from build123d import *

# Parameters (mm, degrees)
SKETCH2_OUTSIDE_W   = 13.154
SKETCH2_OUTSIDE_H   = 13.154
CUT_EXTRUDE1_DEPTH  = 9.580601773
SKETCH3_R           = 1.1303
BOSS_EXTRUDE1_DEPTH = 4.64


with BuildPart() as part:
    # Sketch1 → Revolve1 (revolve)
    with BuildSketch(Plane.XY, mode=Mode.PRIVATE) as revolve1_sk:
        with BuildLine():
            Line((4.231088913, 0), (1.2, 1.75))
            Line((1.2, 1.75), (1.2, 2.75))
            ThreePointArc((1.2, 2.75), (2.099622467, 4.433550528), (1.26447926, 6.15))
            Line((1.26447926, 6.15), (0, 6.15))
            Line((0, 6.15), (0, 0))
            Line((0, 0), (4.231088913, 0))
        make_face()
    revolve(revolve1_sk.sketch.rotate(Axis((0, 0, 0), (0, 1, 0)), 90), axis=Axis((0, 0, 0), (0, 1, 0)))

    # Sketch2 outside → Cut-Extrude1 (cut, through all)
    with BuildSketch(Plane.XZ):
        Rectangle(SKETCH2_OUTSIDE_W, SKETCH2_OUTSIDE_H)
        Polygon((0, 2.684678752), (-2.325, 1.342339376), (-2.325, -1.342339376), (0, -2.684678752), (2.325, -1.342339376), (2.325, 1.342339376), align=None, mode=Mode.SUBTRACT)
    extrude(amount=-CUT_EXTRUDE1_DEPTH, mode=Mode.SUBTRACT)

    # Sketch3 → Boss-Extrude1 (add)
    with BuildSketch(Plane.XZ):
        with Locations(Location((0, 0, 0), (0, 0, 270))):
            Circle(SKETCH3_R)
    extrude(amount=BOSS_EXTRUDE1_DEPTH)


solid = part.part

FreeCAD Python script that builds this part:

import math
import FreeCAD as App
import Part
import Sketcher
from FreeCAD import Vector
Q = App.Units.Quantity


def add_polygon(sketch, points):
    """Adds a closed chain of lines whose ends are joined by coincident constraints."""
    first, n = sketch.GeometryCount, len(points)
    for a, b in zip(points, points[1:] + points[:1]):
        sketch.addGeometry(Part.LineSegment(App.Vector(*a, 0), App.Vector(*b, 0)), False)
    for i in range(n):
        sketch.addConstraint(Sketcher.Constraint("Coincident", first + i, 2, first + (i + 1) % n, 1))

doc = App.newDocument("Part")
body = doc.addObject("PartDesign::Body", "Body")

# Sketch on XY plane
sketch1 = body.newObject("Sketcher::SketchObject", "Sketch")
sketch1.AttachmentSupport = (doc.getObject("XY_Plane"), [""])
sketch1.MapMode = "FlatFace"
sketch1.addGeometry([
    Part.LineSegment(Vector(4.231089, 0, 0), Vector(1.2, 1.75, 0)),  # 0
    Part.LineSegment(Vector(1.2, 1.75, 0), Vector(1.2, 2.75, 0)),  # 1
    Part.ArcOfCircle(Part.Circle(Vector(0, 4.473369, 0), Vector(0, 0, 1), 2.1), math.radians(-55.150095), math.radians(52.977186)),  # 2
    Part.LineSegment(Vector(1.264479, 6.15, 0), Vector(0, 6.15, 0)),  # 3
    Part.LineSegment(Vector(0, 6.15, 0), Vector(0, 0, 0)),  # 4
    Part.LineSegment(Vector(0, 0, 0), Vector(4.231089, 0, 0)),  # 5
], False)
sketch1.addConstraint([
    Sketcher.Constraint("Coincident", 0, 2, 1, 1),
    Sketcher.Constraint("Coincident", 1, 2, 2, 1),
    Sketcher.Constraint("Coincident", 2, 2, 3, 1),
    Sketcher.Constraint("Coincident", 3, 2, 4, 1),
    Sketcher.Constraint("Coincident", 4, 2, 5, 1),
    Sketcher.Constraint("Coincident", 5, 2, 0, 1),
    Sketcher.Constraint("Vertical", 1),
    Sketcher.Constraint("Horizontal", 3),
    Sketcher.Constraint("Vertical", 4),
    Sketcher.Constraint("Horizontal", 5),
    Sketcher.Constraint("Coincident", 4, 2, -1, 1),
    Sketcher.Constraint("PointOnObject", 2, 3, -2),
    Sketcher.Constraint("Radius", 2, 2.1),
    Sketcher.Constraint("DistanceY", 1, 1, 1, 2, 1.0),
    Sketcher.Constraint("Angle", 0, Q("150 deg")),
    Sketcher.Constraint("Distance", 0, 3.5),
    Sketcher.Constraint("DistanceY", 4, 2, 4, 1, 6.15),
    Sketcher.Constraint("DistanceX", -1, 1, 0, 2, 1.2),
])
revolution = body.newObject("PartDesign::Revolution", "Revolution")
revolution.Profile = sketch1
revolution.ReferenceAxis = (sketch1, ["V_Axis"])
revolution.Angle = 360

# Sketch on XZ plane
sketch2 = body.newObject("Sketcher::SketchObject", "Sketch001")
sketch2.AttachmentSupport = (doc.getObject("XZ_Plane"), [""])
sketch2.MapMode = "FlatFace"
add_polygon(sketch2, [(-6.577, 6.577), (-6.577, -6.577), (6.577, -6.577), (6.577, 6.577)])  # lines 0-3
add_polygon(sketch2, [(-2.325, 1.342339), (0, 2.684679), (2.325, 1.342339), (2.325, -1.342339), (0, -2.684679), (-2.325, -1.342339)])  # lines 4-9
sketch2.addConstraint([
    Sketcher.Constraint("Vertical", 0),
    Sketcher.Constraint("Horizontal", 1),
    Sketcher.Constraint("Vertical", 2),
    Sketcher.Constraint("Horizontal", 3),
    Sketcher.Constraint("Vertical", 6),
    Sketcher.Constraint("Vertical", 9),
    Sketcher.Constraint("Symmetric", 0, 2, 2, 2, -1, 1),
    Sketcher.Constraint("Symmetric", 4, 2, 7, 2, -1, 1),
    Sketcher.Constraint("Symmetric", 5, 2, 8, 2, -1, 1),
    Sketcher.Constraint("PointOnObject", 4, 2, -2),
    Sketcher.Constraint("Parallel", 4, 7),
    Sketcher.Constraint("Horizontal", 6, 2, 8, 2),
    Sketcher.Constraint("Equal", 3, 0),
    Sketcher.Constraint("Angle", 4, Q("30 deg")),
    Sketcher.Constraint("DistanceX", 1, 1, 1, 2, 13.154),
    Sketcher.Constraint("DistanceX", 8, 2, 6, 2, 4.65),
    Sketcher.Constraint("DistanceY", 6, 2, 6, 1, 2.684679),
])
pocket1 = body.newObject("PartDesign::Pocket", "Pocket")
pocket1.Profile = sketch2
pocket1.Type = "ThroughAll"

# Sketch on XZ plane
sketch3 = body.newObject("Sketcher::SketchObject", "Sketch002")
sketch3.AttachmentSupport = (doc.getObject("XZ_Plane"), [""])
sketch3.MapMode = "FlatFace"
sketch3.addGeometry(Part.Circle(Vector(0, 0, 0), Vector(0, 0, 1), 1.1303), False)
sketch3.addConstraint([
    Sketcher.Constraint("Coincident", 0, 3, -1, 1),
    Sketcher.Constraint("Diameter", 0, 2.2606),
])
pad1 = body.newObject("PartDesign::Pad", "Pad")
pad1.Profile = sketch3
pad1.Length = 4.64

doc.recompute()
